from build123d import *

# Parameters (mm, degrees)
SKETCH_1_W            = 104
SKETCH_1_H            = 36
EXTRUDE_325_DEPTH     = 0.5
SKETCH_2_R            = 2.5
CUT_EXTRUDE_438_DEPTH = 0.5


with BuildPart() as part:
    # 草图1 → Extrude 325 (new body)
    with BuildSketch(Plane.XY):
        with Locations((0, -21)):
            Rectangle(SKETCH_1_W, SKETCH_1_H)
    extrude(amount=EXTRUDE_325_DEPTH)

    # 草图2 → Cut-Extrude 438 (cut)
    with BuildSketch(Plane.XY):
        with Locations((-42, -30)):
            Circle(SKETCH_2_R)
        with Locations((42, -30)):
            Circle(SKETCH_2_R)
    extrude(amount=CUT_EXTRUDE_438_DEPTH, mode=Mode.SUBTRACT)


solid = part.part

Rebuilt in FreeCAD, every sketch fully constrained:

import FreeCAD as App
import Part
import Sketcher

V = App.Vector
Q = App.Units.Quantity


def add_polygon(sketch, points):
    """Adds a closed chain of lines whose ends are joined by coincident constraints."""
    first, n = sketch.GeometryCount, len(points)
    for a, b in zip(points, points[1:] + points[:1]):
        sketch.addGeometry(Part.LineSegment(App.Vector(*a, 0), App.Vector(*b, 0)), False)
    for i in range(n):
        sketch.addConstraint(Sketcher.Constraint("Coincident", first + i, 2, first + (i + 1) % n, 1))

doc = App.newDocument("Part")
body = doc.addObject("PartDesign::Body", "Body")

# Sketch on XY plane
sketch1 = body.newObject("Sketcher::SketchObject", "Sketch")
sketch1.AttachmentSupport = (doc.getObject("XY_Plane"), [""])
sketch1.MapMode = "FlatFace"
add_polygon(sketch1, [(-52, -3), (-52, -39), (52, -39), (52, -3)])  # lines 0-3
sketch1.addConstraint(Sketcher.Constraint("Vertical", 0))
sketch1.addConstraint(Sketcher.Constraint("Horizontal", 1))
sketch1.addConstraint(Sketcher.Constraint("Vertical", 2))
sketch1.addConstraint(Sketcher.Constraint("Horizontal", 3))
sketch1.addConstraint(Sketcher.Constraint("DistanceX", 1, 1, 1, 2, Q("104 mm")))
sketch1.addConstraint(Sketcher.Constraint("DistanceY", 0, 2, 0, 1, Q("36 mm")))
sketch1.addConstraint(Sketcher.Constraint("DistanceX", 0, 2, -1, 1, Q("52 mm")))
sketch1.addConstraint(Sketcher.Constraint("DistanceY", 0, 2, -1, 1, Q("39 mm")))
pad1 = body.newObject("PartDesign::Pad", "Pad")
pad1.Profile = sketch1
pad1.Length = 0.5

# Sketch on XY plane
sketch2 = body.newObject("Sketcher::SketchObject", "Sketch001")
sketch2.AttachmentSupport = (doc.getObject("XY_Plane"), [""])
sketch2.MapMode = "FlatFace"
sketch2.addGeometry(Part.Circle(V(-42, -30, 0), V(0, 0, 1), 2.5), False)
sketch2.addGeometry(Part.Circle(V(42, -30, 0), V(0, 0, 1), 2.5), False)
sketch2.addConstraint(Sketcher.Constraint("Equal", 0, 1))
sketch2.addConstraint(Sketcher.Constraint("Symmetric", 0, 3, 1, 3, -2))
sketch2.addConstraint(Sketcher.Constraint("Diameter", 0, Q("5 mm")))
sketch2.addConstraint(Sketcher.Constraint("DistanceX", 0, 3, -1, 1, Q("42 mm")))
sketch2.addConstraint(Sketcher.Constraint("DistanceY", 0, 3, -1, 1, Q("30 mm")))
pocket1 = body.newObject("PartDesign::Pocket", "Pocket")
pocket1.Profile = sketch2
pocket1.Length = 0.5
pocket1.Reversed = True

doc.recompute()
